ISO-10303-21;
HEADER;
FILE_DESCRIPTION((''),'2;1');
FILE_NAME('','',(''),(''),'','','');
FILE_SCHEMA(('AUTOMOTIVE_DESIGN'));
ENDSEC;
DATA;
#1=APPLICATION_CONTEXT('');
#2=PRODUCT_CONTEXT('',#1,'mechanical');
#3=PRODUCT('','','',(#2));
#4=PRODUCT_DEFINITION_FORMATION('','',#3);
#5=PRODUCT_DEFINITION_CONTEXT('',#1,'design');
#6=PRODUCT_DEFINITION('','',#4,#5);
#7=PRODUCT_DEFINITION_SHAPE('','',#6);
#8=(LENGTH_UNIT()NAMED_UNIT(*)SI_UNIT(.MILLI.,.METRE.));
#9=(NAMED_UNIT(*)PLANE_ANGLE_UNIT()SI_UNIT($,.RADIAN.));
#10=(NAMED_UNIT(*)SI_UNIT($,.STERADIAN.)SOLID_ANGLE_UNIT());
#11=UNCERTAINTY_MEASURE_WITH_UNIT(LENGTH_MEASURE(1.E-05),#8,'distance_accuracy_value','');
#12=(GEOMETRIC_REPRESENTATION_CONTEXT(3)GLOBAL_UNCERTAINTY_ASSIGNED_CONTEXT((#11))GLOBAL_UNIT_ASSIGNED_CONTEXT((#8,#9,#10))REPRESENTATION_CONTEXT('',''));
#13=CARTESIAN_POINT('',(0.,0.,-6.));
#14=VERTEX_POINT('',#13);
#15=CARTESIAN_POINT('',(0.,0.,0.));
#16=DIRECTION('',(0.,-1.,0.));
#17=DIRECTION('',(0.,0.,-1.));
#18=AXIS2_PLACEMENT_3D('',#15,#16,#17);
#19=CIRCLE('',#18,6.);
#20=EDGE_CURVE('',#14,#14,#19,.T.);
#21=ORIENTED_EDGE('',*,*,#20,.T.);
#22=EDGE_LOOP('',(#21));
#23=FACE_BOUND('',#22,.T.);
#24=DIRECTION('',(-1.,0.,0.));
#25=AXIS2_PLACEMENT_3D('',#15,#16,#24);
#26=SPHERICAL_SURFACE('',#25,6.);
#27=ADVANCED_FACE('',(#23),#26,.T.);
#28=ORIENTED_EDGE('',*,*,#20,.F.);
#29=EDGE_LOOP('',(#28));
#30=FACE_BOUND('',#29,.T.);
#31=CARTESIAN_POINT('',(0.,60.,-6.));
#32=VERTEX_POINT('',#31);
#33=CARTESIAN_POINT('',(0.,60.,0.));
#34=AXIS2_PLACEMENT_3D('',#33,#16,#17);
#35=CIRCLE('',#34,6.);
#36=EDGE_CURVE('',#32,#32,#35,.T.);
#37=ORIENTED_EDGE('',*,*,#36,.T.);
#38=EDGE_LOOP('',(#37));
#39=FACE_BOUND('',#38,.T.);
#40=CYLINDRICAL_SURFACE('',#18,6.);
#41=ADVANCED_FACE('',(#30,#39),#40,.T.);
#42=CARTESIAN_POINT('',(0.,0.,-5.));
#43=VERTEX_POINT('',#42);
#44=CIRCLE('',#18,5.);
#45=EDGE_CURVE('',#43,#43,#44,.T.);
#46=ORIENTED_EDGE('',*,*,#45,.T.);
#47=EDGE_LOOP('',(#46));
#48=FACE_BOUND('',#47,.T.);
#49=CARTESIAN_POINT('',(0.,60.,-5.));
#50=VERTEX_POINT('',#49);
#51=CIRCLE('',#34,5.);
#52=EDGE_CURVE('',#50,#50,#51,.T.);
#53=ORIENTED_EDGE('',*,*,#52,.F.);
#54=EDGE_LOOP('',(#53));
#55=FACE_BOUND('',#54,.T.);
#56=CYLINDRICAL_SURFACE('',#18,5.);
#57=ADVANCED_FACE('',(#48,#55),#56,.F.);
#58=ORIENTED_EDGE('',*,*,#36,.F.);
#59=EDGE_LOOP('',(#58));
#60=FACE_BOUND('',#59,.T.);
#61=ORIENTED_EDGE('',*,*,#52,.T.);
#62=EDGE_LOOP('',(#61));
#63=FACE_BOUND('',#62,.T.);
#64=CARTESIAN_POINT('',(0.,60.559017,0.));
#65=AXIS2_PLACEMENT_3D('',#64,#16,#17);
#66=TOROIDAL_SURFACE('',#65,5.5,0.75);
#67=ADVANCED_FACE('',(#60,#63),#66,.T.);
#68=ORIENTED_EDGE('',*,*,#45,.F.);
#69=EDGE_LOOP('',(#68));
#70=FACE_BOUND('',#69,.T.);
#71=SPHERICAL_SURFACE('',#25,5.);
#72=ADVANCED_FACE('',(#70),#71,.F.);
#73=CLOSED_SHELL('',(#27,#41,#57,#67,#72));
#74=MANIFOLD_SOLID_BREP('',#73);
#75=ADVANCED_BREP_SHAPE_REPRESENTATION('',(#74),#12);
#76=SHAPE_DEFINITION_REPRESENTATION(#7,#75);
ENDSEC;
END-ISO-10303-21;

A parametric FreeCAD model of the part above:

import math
import FreeCAD as App
import Part
import Sketcher
from FreeCAD import Vector
Q = App.Units.Quantity

doc = App.newDocument("Part")
body = doc.addObject("PartDesign::Body", "Body")

# Sketch on XY plane
sketch1 = doc.addObject("Sketcher::SketchObject", "Sketch")
body.addObject(sketch1)
sketch1.AttachmentSupport = (doc.XY_Plane, [""])
sketch1.MapMode = "FlatFace"
sketch1.addGeometry(Part.ArcOfCircle(Part.Circle(Vector(0, 0, 0), Vector(0, 0, 1), 6), math.radians(-90), math.radians(0)), False)
sketch1.addGeometry(Part.LineSegment(Vector(6, 0, 0), Vector(6, 60, 0)), False)
sketch1.addGeometry(Part.ArcOfCircle(Part.Circle(Vector(5.5, 60.6, 0), Vector(0, 0, 1), 0.8), math.radians(-48), math.radians(144)), False)
sketch1.addGeometry(Part.ArcOfCircle(Part.Circle(Vector(5.5, 60.6, 0), Vector(0, 0, 1), 0.8), math.radians(144), math.radians(228)), False)
sketch1.addGeometry(Part.LineSegment(Vector(5, 60, 0), Vector(5, 0, 0)), False)
sketch1.addGeometry(Part.ArcOfCircle(Part.Circle(Vector(0, 0, 0), Vector(0, 0, 1), 5), math.radians(-90), math.radians(0)), False)
sketch1.addGeometry(Part.LineSegment(Vector(0, -5, 0), Vector(0, -6, 0)), False)
sketch1.addConstraint(Sketcher.Constraint("Tangent", 0, 2, 1, 1))
sketch1.addConstraint(Sketcher.Constraint("Coincident", 1, 2, 2, 1))
sketch1.addConstraint(Sketcher.Constraint("Tangent", 2, 2, 3, 1))
sketch1.addConstraint(Sketcher.Constraint("Coincident", 3, 2, 4, 1))
sketch1.addConstraint(Sketcher.Constraint("Tangent", 4, 2, 5, 2))
sketch1.addConstraint(Sketcher.Constraint("Coincident", 5, 1, 6, 1))
sketch1.addConstraint(Sketcher.Constraint("Coincident", 6, 2, 0, 1))
sketch1.addConstraint(Sketcher.Constraint("Vertical", 1))
sketch1.addConstraint(Sketcher.Constraint("Vertical", 4))
sketch1.addConstraint(Sketcher.Constraint("Vertical", 6))
sketch1.addConstraint(Sketcher.Constraint("Coincident", 0, 3, -1, 1))
sketch1.addConstraint(Sketcher.Constraint("Coincident", 5, 3, -1, 1))
sketch1.addConstraint(Sketcher.Constraint("Equal", 2, 3))
sketch1.addConstraint(Sketcher.Constraint("PointOnObject", 5, 1, -2))
sketch1.addConstraint(Sketcher.Constraint("Horizontal", 1, 2, 3, 2))
sketch1.addConstraint(Sketcher.Constraint("Radius", 0, Q("6 mm")))
sketch1.addConstraint(Sketcher.Constraint("Radius", 5, Q("5 mm")))
sketch1.addConstraint(Sketcher.Constraint("DistanceY", 1, 1, 1, 2, Q("60 mm")))
sketch1.addConstraint(Sketcher.Constraint("Radius", 2, Q("0.75 mm")))
sketch1.addConstraint(Sketcher.Constraint("DistanceY", -1, 1, 2, 2, Q("61 mm")))
revolution = doc.addObject("PartDesign::Revolution", "Revolution")
body.addObject(revolution)
revolution.Profile = sketch1
revolution.ReferenceAxis = (sketch1, ["V_Axis"])
revolution.Angle = 360

doc.recompute()
